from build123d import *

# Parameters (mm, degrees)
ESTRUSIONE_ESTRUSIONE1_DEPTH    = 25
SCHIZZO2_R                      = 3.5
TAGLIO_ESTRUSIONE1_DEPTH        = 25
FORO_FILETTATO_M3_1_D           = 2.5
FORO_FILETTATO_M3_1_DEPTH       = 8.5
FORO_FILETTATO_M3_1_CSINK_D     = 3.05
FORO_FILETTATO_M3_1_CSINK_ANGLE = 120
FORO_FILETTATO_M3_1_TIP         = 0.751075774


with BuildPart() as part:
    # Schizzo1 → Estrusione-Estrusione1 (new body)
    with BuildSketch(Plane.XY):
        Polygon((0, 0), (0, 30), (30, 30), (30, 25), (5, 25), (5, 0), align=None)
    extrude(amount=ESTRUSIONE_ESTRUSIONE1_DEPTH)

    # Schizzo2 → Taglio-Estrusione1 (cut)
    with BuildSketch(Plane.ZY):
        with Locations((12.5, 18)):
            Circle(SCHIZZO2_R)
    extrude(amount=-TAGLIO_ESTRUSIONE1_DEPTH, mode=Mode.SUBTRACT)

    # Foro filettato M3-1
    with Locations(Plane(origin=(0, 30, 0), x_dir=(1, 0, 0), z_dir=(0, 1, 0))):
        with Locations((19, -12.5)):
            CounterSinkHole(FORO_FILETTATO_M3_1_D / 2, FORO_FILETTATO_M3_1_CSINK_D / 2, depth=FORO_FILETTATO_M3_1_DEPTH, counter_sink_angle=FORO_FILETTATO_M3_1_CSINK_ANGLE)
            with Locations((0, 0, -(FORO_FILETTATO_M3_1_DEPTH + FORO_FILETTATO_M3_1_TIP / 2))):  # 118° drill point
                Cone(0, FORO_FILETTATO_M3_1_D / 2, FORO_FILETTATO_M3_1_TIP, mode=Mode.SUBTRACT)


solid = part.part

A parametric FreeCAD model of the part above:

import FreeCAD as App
import Part
import Sketcher
from FreeCAD import Vector
Q = App.Units.Quantity

doc = App.newDocument("Part")
params = doc.addObject("Spreadsheet::Sheet", "Params")
for row, (alias, value) in enumerate([
    ("sketch1_width", "5 mm"),
    ("sketch1_width2", "25 mm"),
    ("pad1_length", "25 mm"),
    ("sketch2_diameter", "7 mm"),
    ("pocket1_length", "25 mm"),
    ("sketch3_diameter", "2.5 mm"),
    ("hole_diameter", "2.5 mm"),
    ("hole_depth", "8.5 mm"),
    ("hole_csink_diameter", "3.05 mm"),
], start=1):
    params.set(f"A{row}", alias)
    params.set(f"B{row}", "=" + value)
    params.setAlias(f"B{row}", alias)

body = doc.addObject("PartDesign::Body", "Body")

sketch1 = body.newObject("Sketcher::SketchObject", "Sketch")
sketch1.AttachmentSupport = (doc.getObject("XY_Plane"), [""])
sketch1.MapMode = "FlatFace"
sketch1.addGeometry([
    Part.LineSegment(Vector(0, 30, 0), Vector(0, 0, 0)),
    Part.LineSegment(Vector(0, 0, 0), Vector(5, 0, 0)),
    Part.LineSegment(Vector(5, 0, 0), Vector(5, 25, 0)),
    Part.LineSegment(Vector(5, 25, 0), Vector(30, 25, 0)),
    Part.LineSegment(Vector(30, 25, 0), Vector(30, 30, 0)),
    Part.LineSegment(Vector(30, 30, 0), Vector(0, 30, 0)),
], False)
sketch1.addConstraint([
    Sketcher.Constraint("Coincident", 0, 2, 1, 1),
    Sketcher.Constraint("Coincident", 1, 2, 2, 1),
    Sketcher.Constraint("Coincident", 2, 2, 3, 1),
    Sketcher.Constraint("Coincident", 3, 2, 4, 1),
    Sketcher.Constraint("Coincident", 4, 2, 5, 1),
    Sketcher.Constraint("Coincident", 5, 2, 0, 1),
    Sketcher.Constraint("Vertical", 0),
    Sketcher.Constraint("Horizontal", 1),
    Sketcher.Constraint("Vertical", 2),
    Sketcher.Constraint("Horizontal", 3),
    Sketcher.Constraint("Vertical", 4),
    Sketcher.Constraint("Horizontal", 5),
    Sketcher.Constraint("Coincident", 0, 2, -1, 1),
    Sketcher.Constraint("Equal", 5, 0),
    Sketcher.Constraint("Equal", 3, 2),
    Sketcher.Constraint("DistanceX", 1, 1, 1, 2, Q("5 mm")),
    Sketcher.Constraint("DistanceX", 3, 1, 3, 2, Q("25 mm")),
])
sketch1.setExpression("Constraints[15]", "Params.sketch1_width")
sketch1.setExpression("Constraints[16]", "Params.sketch1_width2")
pad1 = body.newObject("PartDesign::Pad", "Pad")
pad1.Profile = sketch1
pad1.setExpression("Length", "Params.pad1_length")

sketch2 = body.newObject("Sketcher::SketchObject", "Sketch001")
sketch2.AttachmentSupport = (doc.getObject("YZ_Plane"), [""])
sketch2.MapMode = "FlatFace"
sketch2.addGeometry(Part.Circle(Vector(18, 12.5, 0), Vector(0, 0, 1), 3.5), False)
sketch2.addConstraint([
    Sketcher.Constraint("Diameter", 0, Q("7 mm")),
    Sketcher.Constraint("DistanceX", -1, 1, 0, 3, Q("18 mm")),
    Sketcher.Constraint("DistanceY", -1, 1, 0, 3, Q("12.5 mm")),
])
sketch2.setExpression("Constraints[0]", "Params.sketch2_diameter")
pocket1 = body.newObject("PartDesign::Pocket", "Pocket")
pocket1.Profile = sketch2
pocket1.setExpression("Length", "Params.pocket1_length")
pocket1.Reversed = True

sketch3 = body.newObject("Sketcher::SketchObject", "Sketch002")
sketch3.AttachmentSupport = (doc.getObject("XZ_Plane"), [""])
sketch3.MapMode = "FlatFace"
sketch3.AttachmentOffset = App.Placement(Vector(0, 0, -30), App.Rotation())
sketch3.addGeometry(Part.Circle(Vector(19, 12.5, 0), Vector(0, 0, 1), 1.25), False)
sketch3.addConstraint([
    Sketcher.Constraint("Diameter", 0, Q("2.5 mm")),
    Sketcher.Constraint("DistanceX", -1, 1, 0, 3, Q("19 mm")),
    Sketcher.Constraint("DistanceY", -1, 1, 0, 3, Q("12.5 mm")),
])
sketch3.setExpression("Constraints[0]", "Params.sketch3_diameter")
doc.recompute()
hole = body.newObject("PartDesign::Hole", "Hole")
hole.Profile = sketch3
hole.ThreadType = "None"
hole.setExpression("Diameter", "Params.hole_diameter")
hole.DepthType = "Dimension"
hole.setExpression("Depth", "Params.hole_depth")
hole.DrillPoint = "Angled"
hole.DrillPointAngle = 118
hole.HoleCutType = "Countersink"
hole.setExpression("HoleCutDiameter", "Params.hole_csink_diameter")
hole.HoleCutCountersinkAngle = 120
hole.Reversed = True

doc.recompute()
